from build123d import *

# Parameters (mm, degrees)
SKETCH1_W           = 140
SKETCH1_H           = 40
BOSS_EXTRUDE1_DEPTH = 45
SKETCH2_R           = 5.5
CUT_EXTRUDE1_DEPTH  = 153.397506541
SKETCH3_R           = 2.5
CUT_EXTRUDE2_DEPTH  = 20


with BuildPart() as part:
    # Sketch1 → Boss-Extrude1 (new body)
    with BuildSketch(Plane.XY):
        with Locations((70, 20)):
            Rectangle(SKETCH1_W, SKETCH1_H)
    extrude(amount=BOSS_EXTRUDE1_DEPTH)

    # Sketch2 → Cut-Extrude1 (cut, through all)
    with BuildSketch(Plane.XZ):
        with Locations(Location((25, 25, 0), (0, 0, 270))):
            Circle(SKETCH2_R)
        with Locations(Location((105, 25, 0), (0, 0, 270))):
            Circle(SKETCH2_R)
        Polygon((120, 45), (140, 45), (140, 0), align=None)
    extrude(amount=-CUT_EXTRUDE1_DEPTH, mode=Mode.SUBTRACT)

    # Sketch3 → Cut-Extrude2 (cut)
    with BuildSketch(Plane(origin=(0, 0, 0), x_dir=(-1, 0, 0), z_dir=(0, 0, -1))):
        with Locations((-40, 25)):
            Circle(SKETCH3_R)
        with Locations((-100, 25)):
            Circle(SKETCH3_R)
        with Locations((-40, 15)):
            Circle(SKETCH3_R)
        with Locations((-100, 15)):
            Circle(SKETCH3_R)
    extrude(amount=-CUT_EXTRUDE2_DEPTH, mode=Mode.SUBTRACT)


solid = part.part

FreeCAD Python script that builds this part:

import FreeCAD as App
import Part
import Sketcher
from FreeCAD import Vector

doc = App.newDocument("Part")
body = doc.addObject("PartDesign::Body", "Body")

# Sketch on XY plane
sketch1 = doc.addObject("Sketcher::SketchObject", "Sketch")
body.addObject(sketch1)
sketch1.AttachmentSupport = (doc.XY_Plane, [""])
sketch1.MapMode = "FlatFace"
sketch1.addGeometry([
    Part.LineSegment(Vector(0, 40, 0), Vector(0, 0, 0)),
    Part.LineSegment(Vector(0, 0, 0), Vector(140, 0, 0)),
    Part.LineSegment(Vector(140, 0, 0), Vector(140, 40, 0)),
    Part.LineSegment(Vector(140, 40, 0), Vector(0, 40, 0)),
], False)
sketch1.addConstraint([
    Sketcher.Constraint("Coincident", 0, 2, 1, 1),
    Sketcher.Constraint("Coincident", 1, 2, 2, 1),
    Sketcher.Constraint("Coincident", 2, 2, 3, 1),
    Sketcher.Constraint("Coincident", 3, 2, 0, 1),
    Sketcher.Constraint("Vertical", 0),
    Sketcher.Constraint("Horizontal", 1),
    Sketcher.Constraint("Vertical", 2),
    Sketcher.Constraint("Horizontal", 3),
    Sketcher.Constraint("Coincident", 0, 2, -1, 1),
    Sketcher.Constraint("DistanceX", 1, 1, 1, 2, 140.0),
    Sketcher.Constraint("DistanceY", 0, 2, 0, 1, 40.0),
])
pad1 = doc.addObject("PartDesign::Pad", "Pad")
body.addObject(pad1)
pad1.Profile = sketch1
pad1.Length = 45

# Sketch on XZ plane
sketch2 = doc.addObject("Sketcher::SketchObject", "Sketch001")
body.addObject(sketch2)
sketch2.AttachmentSupport = (doc.XZ_Plane, [""])
sketch2.MapMode = "FlatFace"
sketch2.addGeometry([
    Part.Circle(Vector(25, 25, 0), Vector(0, 0, 1), 6),  # 0
    Part.Circle(Vector(105, 25, 0), Vector(0, 0, 1), 6),  # 1
    Part.LineSegment(Vector(140, 45, 0), Vector(120, 45, 0)),  # 2
    Part.LineSegment(Vector(120, 45, 0), Vector(140, 0, 0)),  # 3
    Part.LineSegment(Vector(140, 0, 0), Vector(140, 45, 0)),  # 4
], False)
sketch2.addConstraint([
    Sketcher.Constraint("Coincident", 2, 2, 3, 1),
    Sketcher.Constraint("Coincident", 3, 2, 4, 1),
    Sketcher.Constraint("Coincident", 4, 2, 2, 1),
    Sketcher.Constraint("Horizontal", 2),
    Sketcher.Constraint("Vertical", 4),
    Sketcher.Constraint("Equal", 0, 1),
    Sketcher.Constraint("PointOnObject", 3, 2, -1),
    Sketcher.Constraint("Horizontal", 0, 3, 1, 3),
    Sketcher.Constraint("Diameter", 0, 11.0),
    Sketcher.Constraint("DistanceX", 2, 2, 2, 1, 20.0),
    Sketcher.Constraint("DistanceY", 4, 1, 4, 2, 45.0),
    Sketcher.Constraint("DistanceX", -1, 1, 0, 3, 25.0),
    Sketcher.Constraint("DistanceY", -1, 1, 0, 3, 25.0),
    Sketcher.Constraint("DistanceX", -1, 1, 1, 3, 105.0),
    Sketcher.Constraint("DistanceX", -1, 1, 2, 2, 120.0),
])
pocket1 = doc.addObject("PartDesign::Pocket", "Pocket")
body.addObject(pocket1)
pocket1.Profile = sketch2
pocket1.Type = "ThroughAll"

# Sketch on XY plane
sketch3 = doc.addObject("Sketcher::SketchObject", "Sketch002")
body.addObject(sketch3)
sketch3.AttachmentSupport = (doc.XY_Plane, [""])
sketch3.MapMode = "FlatFace"
sketch3.addGeometry([
    Part.Circle(Vector(40, 25, 0), Vector(0, 0, 1), 2.5),
    Part.Circle(Vector(100, 25, 0), Vector(0, 0, 1), 2.5),
    Part.Circle(Vector(40, 15, 0), Vector(0, 0, 1), 2.5),
    Part.Circle(Vector(100, 15, 0), Vector(0, 0, 1), 2.5),
], False)
sketch3.addConstraint([
    Sketcher.Constraint("Equal", 0, 1),
    Sketcher.Constraint("Equal", 1, 2),
    Sketcher.Constraint("Equal", 2, 3),
    Sketcher.Constraint("Horizontal", 0, 3, 1, 3),
    Sketcher.Constraint("Horizontal", 2, 3, 3, 3),
    Sketcher.Constraint("Vertical", 0, 3, 2, 3),
    Sketcher.Constraint("Vertical", 1, 3, 3, 3),
    Sketcher.Constraint("Diameter", 0, 5.0),
    Sketcher.Constraint("DistanceX", -1, 1, 0, 3, 40.0),
    Sketcher.Constraint("DistanceY", -1, 1, 0, 3, 25.0),
    Sketcher.Constraint("DistanceX", -1, 1, 1, 3, 100.0),
    Sketcher.Constraint("DistanceY", -1, 1, 2, 3, 15.0),
])
pocket2 = doc.addObject("PartDesign::Pocket", "Pocket001")
body.addObject(pocket2)
pocket2.Profile = sketch3
pocket2.Length = 20
pocket2.Reversed = True

doc.recompute()
